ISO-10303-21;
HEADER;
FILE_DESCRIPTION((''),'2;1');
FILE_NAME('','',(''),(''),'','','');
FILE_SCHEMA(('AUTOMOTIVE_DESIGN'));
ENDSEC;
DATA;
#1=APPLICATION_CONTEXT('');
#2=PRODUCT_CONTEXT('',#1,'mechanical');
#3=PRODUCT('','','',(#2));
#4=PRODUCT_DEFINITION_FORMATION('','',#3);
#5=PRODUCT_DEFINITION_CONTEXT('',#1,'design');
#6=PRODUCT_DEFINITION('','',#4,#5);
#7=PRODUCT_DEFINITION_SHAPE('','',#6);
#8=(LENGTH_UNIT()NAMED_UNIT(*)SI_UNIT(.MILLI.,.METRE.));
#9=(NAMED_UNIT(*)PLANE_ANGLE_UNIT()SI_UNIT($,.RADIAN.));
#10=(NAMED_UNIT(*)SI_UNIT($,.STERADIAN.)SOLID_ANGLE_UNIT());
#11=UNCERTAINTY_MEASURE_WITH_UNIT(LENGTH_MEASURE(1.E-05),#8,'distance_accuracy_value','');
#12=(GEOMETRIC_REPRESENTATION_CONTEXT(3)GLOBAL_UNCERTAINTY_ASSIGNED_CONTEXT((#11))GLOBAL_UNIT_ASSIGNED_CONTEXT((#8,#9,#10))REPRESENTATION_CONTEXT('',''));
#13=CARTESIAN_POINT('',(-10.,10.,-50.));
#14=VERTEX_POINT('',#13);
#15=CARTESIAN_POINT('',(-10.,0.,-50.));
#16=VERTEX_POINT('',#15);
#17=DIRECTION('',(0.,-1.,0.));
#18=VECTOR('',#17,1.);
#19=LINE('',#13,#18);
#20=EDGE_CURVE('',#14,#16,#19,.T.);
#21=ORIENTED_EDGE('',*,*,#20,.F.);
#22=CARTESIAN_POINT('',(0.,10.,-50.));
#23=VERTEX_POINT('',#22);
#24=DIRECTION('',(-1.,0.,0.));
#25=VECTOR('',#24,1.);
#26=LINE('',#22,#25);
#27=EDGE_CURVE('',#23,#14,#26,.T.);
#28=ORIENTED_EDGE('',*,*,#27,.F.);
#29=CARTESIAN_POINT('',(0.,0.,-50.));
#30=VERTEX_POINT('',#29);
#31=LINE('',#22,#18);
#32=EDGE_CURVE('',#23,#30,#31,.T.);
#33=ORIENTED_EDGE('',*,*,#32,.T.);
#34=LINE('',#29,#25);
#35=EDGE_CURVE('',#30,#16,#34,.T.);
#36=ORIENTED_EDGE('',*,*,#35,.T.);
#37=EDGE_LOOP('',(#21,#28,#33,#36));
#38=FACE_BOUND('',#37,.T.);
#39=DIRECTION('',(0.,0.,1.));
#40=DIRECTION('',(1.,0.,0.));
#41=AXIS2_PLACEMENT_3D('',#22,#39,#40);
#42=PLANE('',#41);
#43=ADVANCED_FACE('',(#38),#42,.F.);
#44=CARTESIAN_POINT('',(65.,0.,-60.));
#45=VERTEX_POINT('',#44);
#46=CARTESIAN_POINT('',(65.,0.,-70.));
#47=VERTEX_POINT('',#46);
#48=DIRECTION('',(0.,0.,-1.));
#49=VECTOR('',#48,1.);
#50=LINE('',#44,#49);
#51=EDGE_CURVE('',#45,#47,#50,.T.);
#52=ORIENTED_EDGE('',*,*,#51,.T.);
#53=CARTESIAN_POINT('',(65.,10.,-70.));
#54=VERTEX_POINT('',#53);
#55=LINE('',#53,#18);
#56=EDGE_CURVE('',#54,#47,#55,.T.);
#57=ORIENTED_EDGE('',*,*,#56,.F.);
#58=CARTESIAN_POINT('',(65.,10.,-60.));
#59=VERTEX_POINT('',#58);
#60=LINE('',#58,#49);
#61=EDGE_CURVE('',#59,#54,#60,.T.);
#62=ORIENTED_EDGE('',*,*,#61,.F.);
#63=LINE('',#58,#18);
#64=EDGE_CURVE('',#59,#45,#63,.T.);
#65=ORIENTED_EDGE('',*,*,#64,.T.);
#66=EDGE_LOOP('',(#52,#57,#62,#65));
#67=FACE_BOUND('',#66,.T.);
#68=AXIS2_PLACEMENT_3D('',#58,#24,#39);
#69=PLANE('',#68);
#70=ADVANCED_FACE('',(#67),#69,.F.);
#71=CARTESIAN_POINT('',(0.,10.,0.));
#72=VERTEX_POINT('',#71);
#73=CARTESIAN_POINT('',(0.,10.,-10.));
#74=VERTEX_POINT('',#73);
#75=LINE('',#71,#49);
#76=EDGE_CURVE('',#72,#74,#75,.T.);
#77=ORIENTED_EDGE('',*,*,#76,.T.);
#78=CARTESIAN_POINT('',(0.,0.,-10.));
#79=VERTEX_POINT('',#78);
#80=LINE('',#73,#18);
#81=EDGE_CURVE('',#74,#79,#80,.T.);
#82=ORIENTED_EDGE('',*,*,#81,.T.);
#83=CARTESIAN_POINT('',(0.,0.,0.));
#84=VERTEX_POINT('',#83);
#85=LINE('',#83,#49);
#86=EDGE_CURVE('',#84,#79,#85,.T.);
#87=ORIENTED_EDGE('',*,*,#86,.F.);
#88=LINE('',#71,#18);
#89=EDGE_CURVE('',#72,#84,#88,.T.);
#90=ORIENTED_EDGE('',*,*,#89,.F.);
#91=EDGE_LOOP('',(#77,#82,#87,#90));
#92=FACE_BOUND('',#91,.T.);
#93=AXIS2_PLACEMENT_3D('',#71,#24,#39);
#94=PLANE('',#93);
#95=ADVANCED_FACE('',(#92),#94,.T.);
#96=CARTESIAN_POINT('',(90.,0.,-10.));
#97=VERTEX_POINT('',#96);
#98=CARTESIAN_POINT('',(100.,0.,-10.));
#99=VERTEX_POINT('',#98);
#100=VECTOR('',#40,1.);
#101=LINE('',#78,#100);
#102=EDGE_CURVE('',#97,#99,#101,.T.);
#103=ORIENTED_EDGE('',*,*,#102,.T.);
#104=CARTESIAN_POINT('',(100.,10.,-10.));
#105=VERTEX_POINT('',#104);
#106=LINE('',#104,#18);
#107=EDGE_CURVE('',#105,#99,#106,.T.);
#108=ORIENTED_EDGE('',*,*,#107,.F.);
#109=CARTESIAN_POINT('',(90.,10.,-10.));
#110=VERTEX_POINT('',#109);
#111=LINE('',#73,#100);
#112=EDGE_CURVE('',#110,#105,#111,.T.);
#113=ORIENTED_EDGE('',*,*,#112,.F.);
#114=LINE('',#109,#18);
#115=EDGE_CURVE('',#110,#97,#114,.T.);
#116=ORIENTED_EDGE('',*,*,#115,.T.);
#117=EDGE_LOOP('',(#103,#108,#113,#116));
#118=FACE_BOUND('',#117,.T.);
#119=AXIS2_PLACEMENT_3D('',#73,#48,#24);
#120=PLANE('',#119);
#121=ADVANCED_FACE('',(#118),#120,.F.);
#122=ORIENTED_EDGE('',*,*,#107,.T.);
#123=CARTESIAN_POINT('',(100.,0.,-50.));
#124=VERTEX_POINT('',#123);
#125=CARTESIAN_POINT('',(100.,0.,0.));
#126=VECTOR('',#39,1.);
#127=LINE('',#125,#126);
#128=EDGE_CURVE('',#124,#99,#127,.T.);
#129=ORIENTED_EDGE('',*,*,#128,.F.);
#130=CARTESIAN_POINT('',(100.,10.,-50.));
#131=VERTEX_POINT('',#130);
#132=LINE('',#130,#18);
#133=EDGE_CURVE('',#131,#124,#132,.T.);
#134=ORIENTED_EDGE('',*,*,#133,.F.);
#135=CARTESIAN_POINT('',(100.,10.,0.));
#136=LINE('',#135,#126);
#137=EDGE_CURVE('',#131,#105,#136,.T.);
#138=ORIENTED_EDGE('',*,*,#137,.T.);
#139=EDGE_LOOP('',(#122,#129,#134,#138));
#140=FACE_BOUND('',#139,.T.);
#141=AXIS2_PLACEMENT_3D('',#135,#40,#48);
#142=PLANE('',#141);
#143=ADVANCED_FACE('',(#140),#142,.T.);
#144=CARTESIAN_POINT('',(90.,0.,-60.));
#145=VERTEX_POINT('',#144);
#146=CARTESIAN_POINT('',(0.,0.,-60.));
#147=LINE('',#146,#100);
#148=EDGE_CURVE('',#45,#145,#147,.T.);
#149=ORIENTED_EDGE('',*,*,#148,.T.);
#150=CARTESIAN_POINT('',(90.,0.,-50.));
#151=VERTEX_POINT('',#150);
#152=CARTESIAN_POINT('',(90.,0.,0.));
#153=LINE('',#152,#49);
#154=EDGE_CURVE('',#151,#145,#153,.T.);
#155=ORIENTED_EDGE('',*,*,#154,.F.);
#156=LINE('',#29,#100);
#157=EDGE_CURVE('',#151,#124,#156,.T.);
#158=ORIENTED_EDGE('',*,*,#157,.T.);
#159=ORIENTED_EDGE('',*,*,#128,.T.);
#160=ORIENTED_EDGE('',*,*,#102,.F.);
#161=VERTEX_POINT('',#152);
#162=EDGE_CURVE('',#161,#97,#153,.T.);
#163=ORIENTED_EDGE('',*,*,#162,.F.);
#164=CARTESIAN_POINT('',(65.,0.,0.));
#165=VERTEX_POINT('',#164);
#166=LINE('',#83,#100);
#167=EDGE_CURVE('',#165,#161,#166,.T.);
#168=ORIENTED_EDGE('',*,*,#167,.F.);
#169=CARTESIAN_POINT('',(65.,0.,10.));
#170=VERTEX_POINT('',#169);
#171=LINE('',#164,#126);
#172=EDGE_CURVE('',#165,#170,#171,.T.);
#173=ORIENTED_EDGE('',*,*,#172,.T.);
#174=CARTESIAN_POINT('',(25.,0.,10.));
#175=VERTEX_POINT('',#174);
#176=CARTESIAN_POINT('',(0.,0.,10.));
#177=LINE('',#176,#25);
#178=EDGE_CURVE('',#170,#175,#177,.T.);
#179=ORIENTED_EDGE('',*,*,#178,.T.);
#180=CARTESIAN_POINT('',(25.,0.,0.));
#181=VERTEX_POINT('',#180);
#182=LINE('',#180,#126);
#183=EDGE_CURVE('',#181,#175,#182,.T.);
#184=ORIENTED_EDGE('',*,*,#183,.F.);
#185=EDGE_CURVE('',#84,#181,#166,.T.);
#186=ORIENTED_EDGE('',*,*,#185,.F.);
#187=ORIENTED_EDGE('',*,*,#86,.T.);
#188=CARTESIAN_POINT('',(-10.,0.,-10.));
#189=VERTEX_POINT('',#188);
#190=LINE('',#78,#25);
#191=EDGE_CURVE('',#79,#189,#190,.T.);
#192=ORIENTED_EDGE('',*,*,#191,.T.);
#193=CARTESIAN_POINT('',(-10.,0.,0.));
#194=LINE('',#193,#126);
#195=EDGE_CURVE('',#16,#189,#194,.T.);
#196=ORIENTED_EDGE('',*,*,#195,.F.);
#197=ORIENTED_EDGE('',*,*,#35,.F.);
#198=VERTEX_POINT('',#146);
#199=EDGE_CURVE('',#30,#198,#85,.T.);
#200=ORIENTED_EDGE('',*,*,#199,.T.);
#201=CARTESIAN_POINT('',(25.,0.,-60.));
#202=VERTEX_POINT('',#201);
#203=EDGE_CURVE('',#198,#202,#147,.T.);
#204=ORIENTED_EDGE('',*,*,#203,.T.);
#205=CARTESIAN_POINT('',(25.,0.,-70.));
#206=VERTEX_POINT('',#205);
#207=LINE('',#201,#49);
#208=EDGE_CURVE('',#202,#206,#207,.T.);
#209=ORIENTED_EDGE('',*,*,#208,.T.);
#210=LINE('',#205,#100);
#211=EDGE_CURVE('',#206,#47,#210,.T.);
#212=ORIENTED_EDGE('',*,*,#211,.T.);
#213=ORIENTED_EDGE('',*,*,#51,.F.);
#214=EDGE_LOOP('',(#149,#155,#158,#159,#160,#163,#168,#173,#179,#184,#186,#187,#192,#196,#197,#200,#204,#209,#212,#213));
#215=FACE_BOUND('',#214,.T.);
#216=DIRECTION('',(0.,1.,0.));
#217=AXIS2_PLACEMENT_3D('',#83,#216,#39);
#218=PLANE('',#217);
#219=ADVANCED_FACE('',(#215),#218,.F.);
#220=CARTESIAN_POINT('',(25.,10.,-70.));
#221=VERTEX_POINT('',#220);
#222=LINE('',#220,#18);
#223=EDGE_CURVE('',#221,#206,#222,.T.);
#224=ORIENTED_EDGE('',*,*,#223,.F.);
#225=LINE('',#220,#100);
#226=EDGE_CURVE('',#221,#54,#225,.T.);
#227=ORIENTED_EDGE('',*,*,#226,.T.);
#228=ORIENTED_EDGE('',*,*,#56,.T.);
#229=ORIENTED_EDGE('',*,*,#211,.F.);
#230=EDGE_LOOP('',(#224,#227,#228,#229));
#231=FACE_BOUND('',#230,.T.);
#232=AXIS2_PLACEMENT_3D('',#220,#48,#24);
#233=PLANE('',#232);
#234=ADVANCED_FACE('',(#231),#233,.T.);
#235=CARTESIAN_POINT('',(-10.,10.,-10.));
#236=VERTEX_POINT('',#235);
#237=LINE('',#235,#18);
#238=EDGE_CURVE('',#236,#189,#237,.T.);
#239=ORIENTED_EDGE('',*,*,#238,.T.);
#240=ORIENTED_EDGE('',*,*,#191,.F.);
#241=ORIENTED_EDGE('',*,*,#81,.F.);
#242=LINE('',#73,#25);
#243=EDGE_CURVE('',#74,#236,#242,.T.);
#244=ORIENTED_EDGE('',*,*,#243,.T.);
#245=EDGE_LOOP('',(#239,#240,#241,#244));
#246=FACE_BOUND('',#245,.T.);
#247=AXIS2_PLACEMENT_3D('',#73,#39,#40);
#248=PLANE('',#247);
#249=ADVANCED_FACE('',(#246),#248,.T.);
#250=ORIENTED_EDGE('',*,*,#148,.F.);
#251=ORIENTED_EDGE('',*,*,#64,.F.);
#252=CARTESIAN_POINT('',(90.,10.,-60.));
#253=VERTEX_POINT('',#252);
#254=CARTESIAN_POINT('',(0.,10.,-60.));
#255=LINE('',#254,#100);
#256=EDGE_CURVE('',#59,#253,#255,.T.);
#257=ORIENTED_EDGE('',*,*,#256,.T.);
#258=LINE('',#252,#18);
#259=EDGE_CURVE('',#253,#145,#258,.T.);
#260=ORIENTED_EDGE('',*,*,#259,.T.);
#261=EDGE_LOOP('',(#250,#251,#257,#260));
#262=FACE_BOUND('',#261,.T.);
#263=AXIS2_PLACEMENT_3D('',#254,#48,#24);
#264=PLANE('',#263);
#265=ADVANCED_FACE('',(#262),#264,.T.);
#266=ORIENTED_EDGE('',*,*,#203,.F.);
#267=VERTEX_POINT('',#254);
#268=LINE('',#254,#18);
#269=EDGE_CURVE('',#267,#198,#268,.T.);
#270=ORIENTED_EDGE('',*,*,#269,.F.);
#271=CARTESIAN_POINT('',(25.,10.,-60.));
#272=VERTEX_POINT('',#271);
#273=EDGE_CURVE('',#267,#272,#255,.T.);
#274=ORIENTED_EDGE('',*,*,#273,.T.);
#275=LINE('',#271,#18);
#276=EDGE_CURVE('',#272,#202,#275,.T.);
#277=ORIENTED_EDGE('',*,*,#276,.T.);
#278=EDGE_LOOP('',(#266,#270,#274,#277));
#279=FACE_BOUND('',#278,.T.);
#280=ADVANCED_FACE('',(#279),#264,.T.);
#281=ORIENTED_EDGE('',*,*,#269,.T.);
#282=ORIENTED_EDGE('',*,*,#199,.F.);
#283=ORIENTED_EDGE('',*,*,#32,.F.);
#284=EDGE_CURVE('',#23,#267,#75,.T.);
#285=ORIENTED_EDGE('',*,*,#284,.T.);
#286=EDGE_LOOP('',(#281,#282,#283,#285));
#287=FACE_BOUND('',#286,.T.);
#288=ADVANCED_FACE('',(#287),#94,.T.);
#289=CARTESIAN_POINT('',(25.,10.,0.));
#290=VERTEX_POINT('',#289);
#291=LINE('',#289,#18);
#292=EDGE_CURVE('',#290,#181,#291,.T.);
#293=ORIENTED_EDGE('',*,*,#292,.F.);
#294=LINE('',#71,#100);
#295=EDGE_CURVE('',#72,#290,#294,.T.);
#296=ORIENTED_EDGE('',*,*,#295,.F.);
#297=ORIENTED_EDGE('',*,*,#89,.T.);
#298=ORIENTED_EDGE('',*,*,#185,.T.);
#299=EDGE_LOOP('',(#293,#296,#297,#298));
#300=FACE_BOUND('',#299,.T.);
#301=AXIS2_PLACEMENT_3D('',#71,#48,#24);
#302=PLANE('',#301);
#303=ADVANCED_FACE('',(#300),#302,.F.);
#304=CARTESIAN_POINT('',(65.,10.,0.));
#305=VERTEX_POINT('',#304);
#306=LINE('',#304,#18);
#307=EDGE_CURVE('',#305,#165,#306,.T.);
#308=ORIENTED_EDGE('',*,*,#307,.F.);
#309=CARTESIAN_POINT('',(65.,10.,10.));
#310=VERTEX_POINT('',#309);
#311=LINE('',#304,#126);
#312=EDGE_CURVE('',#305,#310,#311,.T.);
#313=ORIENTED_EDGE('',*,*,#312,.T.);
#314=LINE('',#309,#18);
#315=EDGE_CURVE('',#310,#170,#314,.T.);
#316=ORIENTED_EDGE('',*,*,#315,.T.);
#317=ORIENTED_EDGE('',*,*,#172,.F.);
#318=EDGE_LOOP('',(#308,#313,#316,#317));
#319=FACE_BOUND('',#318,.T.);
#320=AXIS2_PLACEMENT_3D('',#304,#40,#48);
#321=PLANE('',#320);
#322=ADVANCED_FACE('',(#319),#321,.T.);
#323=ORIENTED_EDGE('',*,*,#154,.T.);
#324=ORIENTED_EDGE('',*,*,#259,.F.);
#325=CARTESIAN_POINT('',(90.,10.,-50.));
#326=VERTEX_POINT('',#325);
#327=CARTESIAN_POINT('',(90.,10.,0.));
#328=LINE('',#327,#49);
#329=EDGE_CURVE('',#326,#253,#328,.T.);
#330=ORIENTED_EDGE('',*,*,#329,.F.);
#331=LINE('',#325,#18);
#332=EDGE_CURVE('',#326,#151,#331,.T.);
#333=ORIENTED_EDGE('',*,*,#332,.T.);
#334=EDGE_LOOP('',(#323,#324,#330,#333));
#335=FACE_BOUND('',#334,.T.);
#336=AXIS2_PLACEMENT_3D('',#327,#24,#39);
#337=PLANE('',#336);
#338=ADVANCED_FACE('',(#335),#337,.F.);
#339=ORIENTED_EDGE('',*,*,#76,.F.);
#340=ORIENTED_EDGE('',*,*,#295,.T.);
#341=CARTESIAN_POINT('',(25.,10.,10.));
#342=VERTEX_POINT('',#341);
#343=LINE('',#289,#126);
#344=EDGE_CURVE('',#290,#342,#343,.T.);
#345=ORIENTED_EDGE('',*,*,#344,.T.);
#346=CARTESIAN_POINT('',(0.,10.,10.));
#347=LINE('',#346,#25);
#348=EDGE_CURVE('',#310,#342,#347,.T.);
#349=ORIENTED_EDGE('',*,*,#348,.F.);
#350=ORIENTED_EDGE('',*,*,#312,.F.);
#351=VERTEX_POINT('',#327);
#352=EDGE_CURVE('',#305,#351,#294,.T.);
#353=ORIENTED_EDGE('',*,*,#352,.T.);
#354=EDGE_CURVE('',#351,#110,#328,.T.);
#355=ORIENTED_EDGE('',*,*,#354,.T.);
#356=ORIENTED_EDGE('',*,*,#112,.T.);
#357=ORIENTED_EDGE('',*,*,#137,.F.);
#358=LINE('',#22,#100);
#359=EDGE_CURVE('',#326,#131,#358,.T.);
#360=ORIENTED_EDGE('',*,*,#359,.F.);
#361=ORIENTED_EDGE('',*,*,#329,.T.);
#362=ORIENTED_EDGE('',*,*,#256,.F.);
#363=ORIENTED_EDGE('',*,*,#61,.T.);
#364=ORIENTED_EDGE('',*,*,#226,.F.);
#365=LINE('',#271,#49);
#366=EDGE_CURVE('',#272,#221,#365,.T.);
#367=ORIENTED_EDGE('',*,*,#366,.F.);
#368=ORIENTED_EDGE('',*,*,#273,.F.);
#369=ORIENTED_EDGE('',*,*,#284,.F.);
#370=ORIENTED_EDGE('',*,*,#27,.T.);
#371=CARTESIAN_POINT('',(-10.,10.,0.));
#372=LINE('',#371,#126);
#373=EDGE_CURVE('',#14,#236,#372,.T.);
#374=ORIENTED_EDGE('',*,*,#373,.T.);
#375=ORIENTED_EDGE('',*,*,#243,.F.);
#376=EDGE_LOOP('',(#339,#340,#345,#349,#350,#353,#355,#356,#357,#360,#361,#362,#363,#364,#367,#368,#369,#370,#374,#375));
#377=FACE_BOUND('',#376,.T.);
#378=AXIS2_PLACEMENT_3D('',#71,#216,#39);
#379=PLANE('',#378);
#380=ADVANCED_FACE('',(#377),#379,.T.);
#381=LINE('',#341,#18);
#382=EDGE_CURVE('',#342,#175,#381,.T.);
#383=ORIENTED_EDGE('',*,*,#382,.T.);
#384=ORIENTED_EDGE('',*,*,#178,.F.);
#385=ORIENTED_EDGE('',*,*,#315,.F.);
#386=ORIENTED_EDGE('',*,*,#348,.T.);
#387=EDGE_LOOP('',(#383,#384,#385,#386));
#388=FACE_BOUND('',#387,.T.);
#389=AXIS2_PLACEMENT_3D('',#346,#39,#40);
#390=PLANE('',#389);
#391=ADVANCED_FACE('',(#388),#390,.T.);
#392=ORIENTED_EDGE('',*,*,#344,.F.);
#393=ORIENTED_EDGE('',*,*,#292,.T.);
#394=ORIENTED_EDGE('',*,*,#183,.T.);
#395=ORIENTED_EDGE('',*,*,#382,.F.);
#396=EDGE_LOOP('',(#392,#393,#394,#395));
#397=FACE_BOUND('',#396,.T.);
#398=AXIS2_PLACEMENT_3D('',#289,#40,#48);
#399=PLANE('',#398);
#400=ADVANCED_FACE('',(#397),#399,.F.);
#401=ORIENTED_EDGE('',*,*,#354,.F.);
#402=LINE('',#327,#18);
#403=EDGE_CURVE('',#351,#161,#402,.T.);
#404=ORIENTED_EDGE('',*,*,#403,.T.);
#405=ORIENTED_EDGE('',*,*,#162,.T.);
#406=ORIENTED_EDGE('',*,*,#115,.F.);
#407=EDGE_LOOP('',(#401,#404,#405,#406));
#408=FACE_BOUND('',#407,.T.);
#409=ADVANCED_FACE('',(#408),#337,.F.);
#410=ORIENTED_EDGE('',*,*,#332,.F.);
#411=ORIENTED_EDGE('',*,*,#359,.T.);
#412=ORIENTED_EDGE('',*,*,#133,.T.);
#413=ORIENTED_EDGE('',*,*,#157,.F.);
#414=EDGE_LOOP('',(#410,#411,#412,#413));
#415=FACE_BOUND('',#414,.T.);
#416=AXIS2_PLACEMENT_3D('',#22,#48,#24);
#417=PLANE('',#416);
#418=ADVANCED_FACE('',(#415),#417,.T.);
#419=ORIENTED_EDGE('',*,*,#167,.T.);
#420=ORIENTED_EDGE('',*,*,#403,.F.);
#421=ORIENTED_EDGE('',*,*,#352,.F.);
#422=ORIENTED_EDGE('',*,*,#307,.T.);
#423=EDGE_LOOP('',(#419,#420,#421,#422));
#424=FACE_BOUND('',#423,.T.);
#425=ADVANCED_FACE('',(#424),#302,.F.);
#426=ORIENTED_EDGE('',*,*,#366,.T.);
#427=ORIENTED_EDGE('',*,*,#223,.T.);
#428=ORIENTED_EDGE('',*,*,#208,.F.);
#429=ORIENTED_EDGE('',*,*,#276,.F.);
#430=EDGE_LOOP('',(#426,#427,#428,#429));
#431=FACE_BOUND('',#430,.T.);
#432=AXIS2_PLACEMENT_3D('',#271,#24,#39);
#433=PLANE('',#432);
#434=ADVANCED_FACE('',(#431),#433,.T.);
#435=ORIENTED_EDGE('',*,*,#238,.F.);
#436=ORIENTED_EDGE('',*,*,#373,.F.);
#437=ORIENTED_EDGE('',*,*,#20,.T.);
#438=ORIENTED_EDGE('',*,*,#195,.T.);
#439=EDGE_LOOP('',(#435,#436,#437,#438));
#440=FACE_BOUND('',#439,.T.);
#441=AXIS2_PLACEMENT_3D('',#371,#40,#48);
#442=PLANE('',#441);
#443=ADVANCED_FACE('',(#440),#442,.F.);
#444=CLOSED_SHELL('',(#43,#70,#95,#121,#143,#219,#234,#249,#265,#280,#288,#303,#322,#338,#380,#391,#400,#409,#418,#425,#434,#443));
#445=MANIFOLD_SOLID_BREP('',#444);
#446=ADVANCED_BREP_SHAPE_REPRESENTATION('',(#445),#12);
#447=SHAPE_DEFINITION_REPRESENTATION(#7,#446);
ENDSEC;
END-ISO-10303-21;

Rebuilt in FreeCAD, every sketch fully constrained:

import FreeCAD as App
import Part
import Sketcher


def add_polygon(sketch, points):
    """Adds a closed chain of lines whose ends are joined by coincident constraints."""
    first, n = sketch.GeometryCount, len(points)
    for a, b in zip(points, points[1:] + points[:1]):
        sketch.addGeometry(Part.LineSegment(App.Vector(*a, 0), App.Vector(*b, 0)), False)
    for i in range(n):
        sketch.addConstraint(Sketcher.Constraint("Coincident", first + i, 2, first + (i + 1) % n, 1))

doc = App.newDocument("Part")
body = doc.addObject("PartDesign::Body", "Body")

# Sketch on XZ plane
sketch1 = doc.addObject("Sketcher::SketchObject", "Sketch")
body.addObject(sketch1)
sketch1.AttachmentSupport = (doc.XZ_Plane, [""])
sketch1.MapMode = "FlatFace"
add_polygon(sketch1, [(0, -10), (0, 0), (25, 0), (25, 10), (65, 10), (65, 0), (90, 0), (90, -10), (100, -10), (100, -50), (90, -50), (90, -60), (65, -60), (65, -70), (25, -70), (25, -60), (0, -60), (0, -50), (-10, -50), (-10, -10)])  # lines 0-19
sketch1.addConstraint([
    Sketcher.Constraint("Vertical", 0),
    Sketcher.Constraint("Horizontal", 1),
    Sketcher.Constraint("Vertical", 2),
    Sketcher.Constraint("Horizontal", 3),
    Sketcher.Constraint("Vertical", 4),
    Sketcher.Constraint("Horizontal", 5),
    Sketcher.Constraint("Vertical", 6),
    Sketcher.Constraint("Horizontal", 7),
    Sketcher.Constraint("Vertical", 8),
    Sketcher.Constraint("Horizontal", 9),
    Sketcher.Constraint("Vertical", 10),
    Sketcher.Constraint("Horizontal", 11),
    Sketcher.Constraint("Vertical", 12),
    Sketcher.Constraint("Horizontal", 13),
    Sketcher.Constraint("Vertical", 14),
    Sketcher.Constraint("Horizontal", 15),
    Sketcher.Constraint("Vertical", 16),
    Sketcher.Constraint("Horizontal", 17),
    Sketcher.Constraint("Vertical", 18),
    Sketcher.Constraint("Horizontal", 19),
    Sketcher.Constraint("Coincident", 0, 2, -1, 1),
    Sketcher.Constraint("PointOnObject", 4, 2, -1),
    Sketcher.Constraint("PointOnObject", 15, 2, -2),
    Sketcher.Constraint("Horizontal", 11, 2, 14, 2),
    Sketcher.Constraint("Horizontal", 9, 2, 16, 2),
    Sketcher.Constraint("Horizontal", 7, 2, 18, 2),
    Sketcher.Constraint("Vertical", 6, 2, 9, 2),
    Sketcher.Constraint("Vertical", 4, 2, 11, 2),
    Sketcher.Constraint("Vertical", 2, 2, 13, 2),
    Sketcher.Constraint("Equal", 1, 5),
    Sketcher.Constraint("Equal", 9, 17),
    Sketcher.Constraint("Equal", 19, 0),
    Sketcher.Constraint("Equal", 0, 2),
    Sketcher.Constraint("Equal", 13, 8),
    Sketcher.Constraint("Equal", 6, 10),
    Sketcher.Constraint("Equal", 10, 12),
    Sketcher.Constraint("DistanceX", 1, 1, 1, 2, 25.0),
    Sketcher.Constraint("DistanceX", 3, 1, 3, 2, 40.0),
    Sketcher.Constraint("DistanceX", 7, 1, 7, 2, 10.0),
])
pad1 = doc.addObject("PartDesign::Pad", "Pad")
body.addObject(pad1)
pad1.Profile = sketch1
pad1.Length = 10
pad1.Reversed = True

doc.recompute()
